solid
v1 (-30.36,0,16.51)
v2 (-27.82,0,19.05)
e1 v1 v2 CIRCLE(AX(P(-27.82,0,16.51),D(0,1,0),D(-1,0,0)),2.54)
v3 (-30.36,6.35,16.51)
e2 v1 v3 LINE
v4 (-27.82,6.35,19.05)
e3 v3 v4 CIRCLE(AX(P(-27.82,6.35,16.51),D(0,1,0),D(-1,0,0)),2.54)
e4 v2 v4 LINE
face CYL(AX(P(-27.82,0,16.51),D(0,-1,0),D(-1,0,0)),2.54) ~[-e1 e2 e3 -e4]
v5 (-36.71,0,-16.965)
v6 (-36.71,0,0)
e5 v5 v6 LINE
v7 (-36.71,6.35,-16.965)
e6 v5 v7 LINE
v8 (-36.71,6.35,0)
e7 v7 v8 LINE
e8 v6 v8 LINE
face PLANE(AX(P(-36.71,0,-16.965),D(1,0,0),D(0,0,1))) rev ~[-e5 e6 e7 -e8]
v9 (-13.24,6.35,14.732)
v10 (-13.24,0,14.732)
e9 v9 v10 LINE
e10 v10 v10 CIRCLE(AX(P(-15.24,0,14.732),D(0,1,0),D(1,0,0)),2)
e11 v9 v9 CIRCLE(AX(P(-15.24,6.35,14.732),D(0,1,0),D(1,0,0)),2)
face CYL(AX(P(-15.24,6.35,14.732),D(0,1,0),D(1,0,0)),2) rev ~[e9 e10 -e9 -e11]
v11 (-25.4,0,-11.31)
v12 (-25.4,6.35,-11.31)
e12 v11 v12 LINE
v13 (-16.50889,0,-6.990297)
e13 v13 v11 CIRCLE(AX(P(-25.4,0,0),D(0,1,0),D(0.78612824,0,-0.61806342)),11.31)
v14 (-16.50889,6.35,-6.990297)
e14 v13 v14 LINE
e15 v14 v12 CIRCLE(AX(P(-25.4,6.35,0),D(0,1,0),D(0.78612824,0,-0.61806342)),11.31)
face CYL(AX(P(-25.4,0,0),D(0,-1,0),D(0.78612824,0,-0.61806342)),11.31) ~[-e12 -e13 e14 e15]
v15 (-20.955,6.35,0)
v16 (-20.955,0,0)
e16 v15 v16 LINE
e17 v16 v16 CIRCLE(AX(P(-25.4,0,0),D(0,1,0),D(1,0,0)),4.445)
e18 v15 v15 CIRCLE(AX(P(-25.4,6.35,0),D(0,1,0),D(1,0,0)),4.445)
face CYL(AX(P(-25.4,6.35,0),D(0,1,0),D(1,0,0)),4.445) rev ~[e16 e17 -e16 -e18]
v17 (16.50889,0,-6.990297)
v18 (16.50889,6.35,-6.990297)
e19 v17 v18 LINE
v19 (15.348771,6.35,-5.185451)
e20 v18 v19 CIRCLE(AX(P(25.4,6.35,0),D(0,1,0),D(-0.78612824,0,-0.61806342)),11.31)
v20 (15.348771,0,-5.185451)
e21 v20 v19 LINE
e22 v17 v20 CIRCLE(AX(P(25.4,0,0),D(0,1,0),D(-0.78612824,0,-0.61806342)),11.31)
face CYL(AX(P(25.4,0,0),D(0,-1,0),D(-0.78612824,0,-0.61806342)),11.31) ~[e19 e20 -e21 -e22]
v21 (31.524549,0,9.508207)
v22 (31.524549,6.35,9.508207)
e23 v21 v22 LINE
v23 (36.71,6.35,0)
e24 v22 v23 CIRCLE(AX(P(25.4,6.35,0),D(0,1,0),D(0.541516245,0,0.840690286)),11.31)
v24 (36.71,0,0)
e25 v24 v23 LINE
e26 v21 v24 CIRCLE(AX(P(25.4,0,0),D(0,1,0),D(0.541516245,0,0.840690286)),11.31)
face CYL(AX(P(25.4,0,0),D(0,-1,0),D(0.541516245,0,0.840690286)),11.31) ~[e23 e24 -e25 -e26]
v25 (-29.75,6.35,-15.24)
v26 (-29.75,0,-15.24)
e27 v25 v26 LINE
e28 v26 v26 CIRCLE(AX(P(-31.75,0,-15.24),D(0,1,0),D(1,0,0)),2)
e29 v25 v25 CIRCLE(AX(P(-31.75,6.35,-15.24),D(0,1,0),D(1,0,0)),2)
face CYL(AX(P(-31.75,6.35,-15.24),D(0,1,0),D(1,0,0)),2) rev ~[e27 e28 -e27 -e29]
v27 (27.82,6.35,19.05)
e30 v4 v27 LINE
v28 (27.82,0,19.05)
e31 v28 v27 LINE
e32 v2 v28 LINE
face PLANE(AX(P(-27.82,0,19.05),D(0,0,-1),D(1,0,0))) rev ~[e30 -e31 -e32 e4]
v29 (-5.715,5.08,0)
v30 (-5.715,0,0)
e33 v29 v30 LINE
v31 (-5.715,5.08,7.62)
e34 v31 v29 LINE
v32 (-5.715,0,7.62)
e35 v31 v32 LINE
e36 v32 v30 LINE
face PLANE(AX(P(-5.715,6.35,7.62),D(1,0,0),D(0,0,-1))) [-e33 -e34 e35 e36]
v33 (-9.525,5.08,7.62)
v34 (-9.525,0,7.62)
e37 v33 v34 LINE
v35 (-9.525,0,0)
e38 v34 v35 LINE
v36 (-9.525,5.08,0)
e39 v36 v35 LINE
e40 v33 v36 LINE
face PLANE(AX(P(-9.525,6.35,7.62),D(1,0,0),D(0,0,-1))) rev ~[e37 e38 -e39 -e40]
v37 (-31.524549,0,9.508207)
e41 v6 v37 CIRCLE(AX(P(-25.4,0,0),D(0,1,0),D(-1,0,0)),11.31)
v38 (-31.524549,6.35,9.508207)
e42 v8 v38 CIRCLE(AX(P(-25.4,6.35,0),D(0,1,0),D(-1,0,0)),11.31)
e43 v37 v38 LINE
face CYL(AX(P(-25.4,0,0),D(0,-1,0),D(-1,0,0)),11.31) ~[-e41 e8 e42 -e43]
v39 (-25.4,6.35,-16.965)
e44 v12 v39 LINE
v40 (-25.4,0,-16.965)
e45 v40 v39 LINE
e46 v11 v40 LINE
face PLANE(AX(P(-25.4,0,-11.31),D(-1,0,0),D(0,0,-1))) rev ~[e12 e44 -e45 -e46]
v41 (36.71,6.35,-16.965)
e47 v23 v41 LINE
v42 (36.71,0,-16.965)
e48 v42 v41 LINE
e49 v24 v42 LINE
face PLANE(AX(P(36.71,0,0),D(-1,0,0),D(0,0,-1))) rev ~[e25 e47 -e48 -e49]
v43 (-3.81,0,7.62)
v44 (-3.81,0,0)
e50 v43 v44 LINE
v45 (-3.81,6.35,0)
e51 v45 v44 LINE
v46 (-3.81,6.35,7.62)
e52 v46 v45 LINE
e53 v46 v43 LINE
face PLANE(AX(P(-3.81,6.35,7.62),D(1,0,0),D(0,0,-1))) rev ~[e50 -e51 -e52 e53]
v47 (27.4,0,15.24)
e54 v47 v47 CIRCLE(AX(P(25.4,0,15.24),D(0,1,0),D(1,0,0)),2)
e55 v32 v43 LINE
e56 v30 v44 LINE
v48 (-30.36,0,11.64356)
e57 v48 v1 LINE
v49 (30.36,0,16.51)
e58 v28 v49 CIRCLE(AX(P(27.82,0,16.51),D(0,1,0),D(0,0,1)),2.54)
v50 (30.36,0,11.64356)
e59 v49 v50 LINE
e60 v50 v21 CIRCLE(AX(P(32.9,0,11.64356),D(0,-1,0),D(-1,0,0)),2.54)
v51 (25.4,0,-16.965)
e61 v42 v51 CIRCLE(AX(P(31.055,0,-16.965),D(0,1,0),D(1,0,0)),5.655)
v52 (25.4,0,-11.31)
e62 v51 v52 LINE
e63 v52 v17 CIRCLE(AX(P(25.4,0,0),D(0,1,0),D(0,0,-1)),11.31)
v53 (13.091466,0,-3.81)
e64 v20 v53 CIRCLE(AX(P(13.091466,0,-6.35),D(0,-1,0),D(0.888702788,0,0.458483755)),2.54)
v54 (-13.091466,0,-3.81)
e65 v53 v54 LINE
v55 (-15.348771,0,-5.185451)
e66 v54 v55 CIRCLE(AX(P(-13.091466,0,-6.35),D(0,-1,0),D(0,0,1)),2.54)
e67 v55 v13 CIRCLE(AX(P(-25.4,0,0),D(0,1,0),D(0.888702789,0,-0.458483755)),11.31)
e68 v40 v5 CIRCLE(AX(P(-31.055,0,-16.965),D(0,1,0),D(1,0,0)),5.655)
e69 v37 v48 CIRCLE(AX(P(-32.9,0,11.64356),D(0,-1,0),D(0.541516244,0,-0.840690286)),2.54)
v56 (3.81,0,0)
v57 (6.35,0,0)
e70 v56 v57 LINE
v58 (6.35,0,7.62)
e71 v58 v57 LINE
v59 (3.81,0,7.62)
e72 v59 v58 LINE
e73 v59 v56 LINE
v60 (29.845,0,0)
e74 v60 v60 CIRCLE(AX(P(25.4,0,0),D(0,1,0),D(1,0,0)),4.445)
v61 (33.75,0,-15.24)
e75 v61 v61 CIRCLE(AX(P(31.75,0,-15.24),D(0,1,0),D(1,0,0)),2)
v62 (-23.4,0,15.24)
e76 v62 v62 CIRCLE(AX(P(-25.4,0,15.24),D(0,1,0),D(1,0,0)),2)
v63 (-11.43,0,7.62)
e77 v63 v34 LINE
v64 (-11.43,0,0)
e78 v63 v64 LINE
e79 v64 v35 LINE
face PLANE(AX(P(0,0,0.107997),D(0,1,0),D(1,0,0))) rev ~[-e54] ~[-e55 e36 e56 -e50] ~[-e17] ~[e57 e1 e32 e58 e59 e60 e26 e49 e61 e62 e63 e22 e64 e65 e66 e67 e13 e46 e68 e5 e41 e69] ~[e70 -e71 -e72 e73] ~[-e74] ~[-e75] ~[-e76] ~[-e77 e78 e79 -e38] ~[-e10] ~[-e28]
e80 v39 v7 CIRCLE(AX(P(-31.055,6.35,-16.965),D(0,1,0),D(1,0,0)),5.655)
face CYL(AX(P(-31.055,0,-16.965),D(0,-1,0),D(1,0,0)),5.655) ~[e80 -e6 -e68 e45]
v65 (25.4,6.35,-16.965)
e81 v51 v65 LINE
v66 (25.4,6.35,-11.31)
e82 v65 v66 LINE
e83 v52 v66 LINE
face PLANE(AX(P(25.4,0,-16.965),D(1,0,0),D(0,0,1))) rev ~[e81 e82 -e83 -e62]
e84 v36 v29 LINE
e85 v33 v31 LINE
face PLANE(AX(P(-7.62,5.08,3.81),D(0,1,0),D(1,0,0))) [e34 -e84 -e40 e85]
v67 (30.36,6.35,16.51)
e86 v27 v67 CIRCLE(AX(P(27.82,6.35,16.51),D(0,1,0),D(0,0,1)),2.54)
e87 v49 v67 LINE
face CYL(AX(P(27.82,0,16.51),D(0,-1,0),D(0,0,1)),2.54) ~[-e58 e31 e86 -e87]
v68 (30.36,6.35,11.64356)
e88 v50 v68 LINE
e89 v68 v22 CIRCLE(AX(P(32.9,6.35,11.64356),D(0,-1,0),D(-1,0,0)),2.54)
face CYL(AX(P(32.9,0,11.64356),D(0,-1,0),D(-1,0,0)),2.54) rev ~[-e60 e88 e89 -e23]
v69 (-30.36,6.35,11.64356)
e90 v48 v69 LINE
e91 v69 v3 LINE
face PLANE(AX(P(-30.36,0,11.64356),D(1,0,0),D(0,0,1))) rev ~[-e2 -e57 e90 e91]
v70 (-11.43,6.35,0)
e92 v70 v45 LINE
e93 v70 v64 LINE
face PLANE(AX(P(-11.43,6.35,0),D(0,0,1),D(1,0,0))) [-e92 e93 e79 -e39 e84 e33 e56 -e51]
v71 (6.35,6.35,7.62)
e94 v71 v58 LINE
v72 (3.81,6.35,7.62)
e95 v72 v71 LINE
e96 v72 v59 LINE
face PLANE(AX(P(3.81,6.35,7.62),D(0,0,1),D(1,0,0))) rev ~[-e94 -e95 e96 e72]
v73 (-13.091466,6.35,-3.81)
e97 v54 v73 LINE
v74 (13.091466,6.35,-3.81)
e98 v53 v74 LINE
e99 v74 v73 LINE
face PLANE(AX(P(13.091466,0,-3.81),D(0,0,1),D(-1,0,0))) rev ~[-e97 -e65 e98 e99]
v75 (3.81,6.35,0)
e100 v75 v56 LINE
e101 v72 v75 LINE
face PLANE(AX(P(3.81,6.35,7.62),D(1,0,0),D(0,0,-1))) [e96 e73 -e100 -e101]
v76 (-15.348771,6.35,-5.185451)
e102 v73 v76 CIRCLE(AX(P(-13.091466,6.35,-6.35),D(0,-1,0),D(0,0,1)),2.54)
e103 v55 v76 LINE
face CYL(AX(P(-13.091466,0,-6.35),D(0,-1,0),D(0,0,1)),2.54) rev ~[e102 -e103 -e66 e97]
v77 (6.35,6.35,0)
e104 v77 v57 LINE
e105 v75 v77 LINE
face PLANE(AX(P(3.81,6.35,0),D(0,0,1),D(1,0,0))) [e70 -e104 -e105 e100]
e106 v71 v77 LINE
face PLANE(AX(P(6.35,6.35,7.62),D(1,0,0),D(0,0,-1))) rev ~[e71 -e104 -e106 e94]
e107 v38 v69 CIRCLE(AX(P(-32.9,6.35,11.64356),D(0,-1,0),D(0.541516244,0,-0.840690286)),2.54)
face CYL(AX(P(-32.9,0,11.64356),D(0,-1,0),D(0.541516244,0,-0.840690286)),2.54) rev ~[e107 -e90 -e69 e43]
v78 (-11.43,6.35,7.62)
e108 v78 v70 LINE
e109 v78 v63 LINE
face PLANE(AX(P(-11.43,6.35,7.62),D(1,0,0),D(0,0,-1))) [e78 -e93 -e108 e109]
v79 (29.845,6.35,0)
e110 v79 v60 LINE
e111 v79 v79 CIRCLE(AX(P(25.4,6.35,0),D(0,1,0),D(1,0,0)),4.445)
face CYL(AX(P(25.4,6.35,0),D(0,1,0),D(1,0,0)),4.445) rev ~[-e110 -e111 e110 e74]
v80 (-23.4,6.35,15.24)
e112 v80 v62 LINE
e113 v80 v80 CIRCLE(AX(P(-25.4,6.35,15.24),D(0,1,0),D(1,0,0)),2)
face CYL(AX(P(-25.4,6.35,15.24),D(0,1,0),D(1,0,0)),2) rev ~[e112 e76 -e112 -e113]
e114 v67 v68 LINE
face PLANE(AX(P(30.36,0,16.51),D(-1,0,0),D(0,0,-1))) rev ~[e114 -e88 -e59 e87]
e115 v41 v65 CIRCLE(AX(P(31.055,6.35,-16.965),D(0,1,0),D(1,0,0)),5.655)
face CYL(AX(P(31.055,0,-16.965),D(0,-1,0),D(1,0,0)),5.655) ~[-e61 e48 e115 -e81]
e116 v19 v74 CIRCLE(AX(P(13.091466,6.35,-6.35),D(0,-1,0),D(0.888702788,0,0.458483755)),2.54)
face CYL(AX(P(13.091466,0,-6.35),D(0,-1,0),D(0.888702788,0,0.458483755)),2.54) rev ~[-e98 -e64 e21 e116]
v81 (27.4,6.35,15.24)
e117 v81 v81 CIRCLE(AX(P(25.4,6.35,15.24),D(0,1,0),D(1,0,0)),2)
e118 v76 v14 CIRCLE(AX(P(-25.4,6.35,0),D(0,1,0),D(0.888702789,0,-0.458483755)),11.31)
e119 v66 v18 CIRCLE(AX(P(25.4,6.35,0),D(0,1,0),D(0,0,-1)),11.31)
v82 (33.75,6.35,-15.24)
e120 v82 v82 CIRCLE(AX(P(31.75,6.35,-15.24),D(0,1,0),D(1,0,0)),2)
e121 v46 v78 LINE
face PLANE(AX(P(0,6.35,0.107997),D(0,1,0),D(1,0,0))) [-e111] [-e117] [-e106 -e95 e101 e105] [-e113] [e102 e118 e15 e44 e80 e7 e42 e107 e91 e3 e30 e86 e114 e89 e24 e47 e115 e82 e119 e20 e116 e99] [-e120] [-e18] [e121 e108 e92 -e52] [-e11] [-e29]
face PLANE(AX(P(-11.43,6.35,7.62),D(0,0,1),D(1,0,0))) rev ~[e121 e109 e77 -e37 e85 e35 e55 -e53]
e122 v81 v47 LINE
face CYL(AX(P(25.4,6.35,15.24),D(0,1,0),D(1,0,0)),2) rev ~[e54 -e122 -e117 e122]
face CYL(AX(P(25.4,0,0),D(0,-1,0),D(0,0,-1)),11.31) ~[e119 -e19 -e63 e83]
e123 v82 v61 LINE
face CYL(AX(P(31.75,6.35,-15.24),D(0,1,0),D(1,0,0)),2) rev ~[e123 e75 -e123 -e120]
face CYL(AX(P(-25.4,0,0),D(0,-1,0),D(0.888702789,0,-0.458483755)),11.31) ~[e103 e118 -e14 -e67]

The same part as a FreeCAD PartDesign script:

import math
import FreeCAD as App
import Part
import Sketcher
from FreeCAD import Vector
Q = App.Units.Quantity


def add_polygon(sketch, points):
    """Adds a closed chain of lines whose ends are joined by coincident constraints."""
    first, n = sketch.GeometryCount, len(points)
    for a, b in zip(points, points[1:] + points[:1]):
        sketch.addGeometry(Part.LineSegment(App.Vector(*a, 0), App.Vector(*b, 0)), False)
    for i in range(n):
        sketch.addConstraint(Sketcher.Constraint("Coincident", first + i, 2, first + (i + 1) % n, 1))

doc = App.newDocument("Part")
body = doc.addObject("PartDesign::Body", "Body")

# Sketch on XZ plane
sketch1 = body.newObject("Sketcher::SketchObject", "Sketch")
sketch1.AttachmentSupport = (doc.getObject("XZ_Plane"), [""])
sketch1.MapMode = "FlatFace"
sketch1.addGeometry([
    Part.LineSegment(Vector(-25.4, -11.3, 0), Vector(-25.4, -17, 0)),  # 0
    Part.ArcOfCircle(Part.Circle(Vector(-31.1, -17, 0), Vector(0, 0, 1), 5.7), math.radians(180), math.radians(360)),  # 1
    Part.LineSegment(Vector(-36.7, -17, 0), Vector(-36.7, 0, 0)),  # 2
    Part.ArcOfCircle(Part.Circle(Vector(-25.4, 0, 0), Vector(0, 0, 1), 11.3), math.radians(123), math.radians(180)),  # 3
    Part.ArcOfCircle(Part.Circle(Vector(-32.9, 11.6, 0), Vector(0, 0, 1), 2.5), math.radians(-57), math.radians(0)),  # 4
    Part.LineSegment(Vector(-30.4, 11.6, 0), Vector(-30.4, 16.5, 0)),  # 5
    Part.ArcOfCircle(Part.Circle(Vector(-27.8, 16.5, 0), Vector(0, 0, 1), 2.5), math.radians(90), math.radians(180)),  # 6
    Part.LineSegment(Vector(-27.8, 19.1, 0), Vector(27.8, 19.1, 0)),  # 7
    Part.ArcOfCircle(Part.Circle(Vector(27.8, 16.5, 0), Vector(0, 0, 1), 2.5), math.radians(0), math.radians(90)),  # 8
    Part.LineSegment(Vector(30.4, 16.5, 0), Vector(30.4, 11.6, 0)),  # 9
    Part.ArcOfCircle(Part.Circle(Vector(32.9, 11.6, 0), Vector(0, 0, 1), 2.5), math.radians(180), math.radians(237)),  # 10
    Part.ArcOfCircle(Part.Circle(Vector(25.4, 0, 0), Vector(0, 0, 1), 11.3), math.radians(0), math.radians(57)),  # 11
    Part.LineSegment(Vector(36.7, 0, 0), Vector(36.7, -17, 0)),  # 12
    Part.ArcOfCircle(Part.Circle(Vector(31.1, -17, 0), Vector(0, 0, 1), 5.7), math.radians(180), math.radians(360)),  # 13
    Part.LineSegment(Vector(25.4, -17, 0), Vector(25.4, -11.3, 0)),  # 14
    Part.ArcOfCircle(Part.Circle(Vector(25.4, 0, 0), Vector(0, 0, 1), 11.3), math.radians(-142), math.radians(-90)),  # 15
    Part.ArcOfCircle(Part.Circle(Vector(25.4, 0, 0), Vector(0, 0, 1), 11.3), math.radians(-152.71), math.radians(-141.83)),  # 16
    Part.ArcOfCircle(Part.Circle(Vector(13.1, -6.4, 0), Vector(0, 0, 1), 2.5), math.radians(27), math.radians(90)),  # 17
    Part.LineSegment(Vector(13.1, -3.8, 0), Vector(-13.1, -3.8, 0)),  # 18
    Part.ArcOfCircle(Part.Circle(Vector(-13.1, -6.4, 0), Vector(0, 0, 1), 2.5), math.radians(90), math.radians(153)),  # 19
    Part.ArcOfCircle(Part.Circle(Vector(-25.4, 0, 0), Vector(0, 0, 1), 11.3), math.radians(-38.17), math.radians(-27.29)),  # 20
    Part.ArcOfCircle(Part.Circle(Vector(-25.4, 0, 0), Vector(0, 0, 1), 11.3), math.radians(-90), math.radians(-38)),  # 21
], False)
sketch1.addConstraint([
    Sketcher.Constraint("Tangent", 0, 2, 1, 2),
    Sketcher.Constraint("Tangent", 1, 1, 2, 1),
    Sketcher.Constraint("Tangent", 2, 2, 3, 2),
    Sketcher.Constraint("Tangent", 3, 1, 4, 1),
    Sketcher.Constraint("Tangent", 4, 2, 5, 1),
    Sketcher.Constraint("Tangent", 5, 2, 6, 2),
    Sketcher.Constraint("Tangent", 6, 1, 7, 1),
    Sketcher.Constraint("Tangent", 7, 2, 8, 2),
    Sketcher.Constraint("Tangent", 8, 1, 9, 1),
    Sketcher.Constraint("Tangent", 9, 2, 10, 1),
    Sketcher.Constraint("Tangent", 10, 2, 11, 2),
    Sketcher.Constraint("Tangent", 11, 1, 12, 1),
    Sketcher.Constraint("Tangent", 12, 2, 13, 2),
    Sketcher.Constraint("Tangent", 13, 1, 14, 1),
    Sketcher.Constraint("Coincident", 14, 2, 15, 2),
    Sketcher.Constraint("Tangent", 15, 1, 16, 2),
    Sketcher.Constraint("Tangent", 16, 1, 17, 1),
    Sketcher.Constraint("Tangent", 17, 2, 18, 1),
    Sketcher.Constraint("Tangent", 18, 2, 19, 1),
    Sketcher.Constraint("Tangent", 19, 2, 20, 2),
    Sketcher.Constraint("Tangent", 20, 1, 21, 2),
    Sketcher.Constraint("Coincident", 21, 1, 0, 1),
    Sketcher.Constraint("Vertical", 0),
    Sketcher.Constraint("Vertical", 2),
    Sketcher.Constraint("Vertical", 5),
    Sketcher.Constraint("Horizontal", 7),
    Sketcher.Constraint("Vertical", 9),
    Sketcher.Constraint("Vertical", 12),
    Sketcher.Constraint("Vertical", 14),
    Sketcher.Constraint("Horizontal", 18),
    Sketcher.Constraint("Coincident", 15, 3, 11, 3),
    Sketcher.Constraint("Coincident", 20, 3, 3, 3),
    Sketcher.Constraint("Equal", 4, 6),
    Sketcher.Constraint("Equal", 6, 8),
    Sketcher.Constraint("Equal", 8, 10),
    Sketcher.Constraint("Equal", 3, 11),
    Sketcher.Constraint("Equal", 1, 13),
    Sketcher.Constraint("Equal", 11, 15),
    Sketcher.Constraint("Equal", 15, 16),
    Sketcher.Constraint("Equal", 10, 17),
    Sketcher.Constraint("Equal", 17, 19),
    Sketcher.Constraint("Equal", 16, 20),
    Sketcher.Constraint("Equal", 20, 21),
    Sketcher.Constraint("Symmetric", 3, 3, 11, 3, -1, 1),
    Sketcher.Constraint("Symmetric", 4, 3, 10, 3, -2),
    Sketcher.Constraint("Horizontal", 1, 3, 13, 3),
    Sketcher.Constraint("Horizontal", 15, 1, 20, 1),
    Sketcher.Constraint("Vertical", 21, 3, 0, 2),
    Sketcher.Constraint("Radius", 4, Q("0.1 in")),
    Sketcher.Constraint("DistanceX", 3, 3, -1, 1, Q("1 in")),
    Sketcher.Constraint("DistanceY", 19, 3, 6, 3, Q("0.9 in")),
    Sketcher.Constraint("DistanceY", -1, 1, 6, 3, Q("0.65 in")),
    Sketcher.Constraint("Radius", 1, Q("5.655 mm")),
    Sketcher.Constraint("DistanceX", 2, 2, 4, 3, Q("0.15 in")),
    Sketcher.Constraint("DistanceY", 0, 2, 0, 1, Q("5.655 mm")),
    Sketcher.Constraint("DistanceX", -1, 1, 15, 1, Q("16.50889 mm")),
])
pad1 = body.newObject("PartDesign::Pad", "Pad")
pad1.Profile = sketch1
pad1.Length = Q("0.25 in")
pad1.Reversed = True

# Sketch on XZ plane
sketch2 = body.newObject("Sketcher::SketchObject", "Sketch001")
sketch2.AttachmentSupport = (doc.getObject("XZ_Plane"), [""])
sketch2.MapMode = "FlatFace"
sketch2.AttachmentOffset = App.Placement(Vector(0, 0, -0.25 * 25.4), App.Rotation())
sketch2.addGeometry([
    Part.Circle(Vector(-25.4, 0, 0), Vector(0, 0, 1), 4.4),
    Part.Circle(Vector(25.4, 0, 0), Vector(0, 0, 1), 4.4),
], False)
sketch2.addConstraint([
    Sketcher.Constraint("Equal", 0, 1),
    Sketcher.Constraint("Symmetric", 0, 3, 1, 3, -1, 1),
    Sketcher.Constraint("PointOnObject", 0, 3, -1),
    Sketcher.Constraint("Diameter", 0, Q("0.35 in")),
    Sketcher.Constraint("DistanceX", 0, 3, -1, 1, Q("1 in")),
])
pocket1 = body.newObject("PartDesign::Pocket", "Pocket")
pocket1.Profile = sketch2
pocket1.Length = Q("0.25 in")
pocket1.Reversed = True

# Sketch on XZ plane
sketch3 = body.newObject("Sketcher::SketchObject", "Sketch002")
sketch3.AttachmentSupport = (doc.getObject("XZ_Plane"), [""])
sketch3.MapMode = "FlatFace"
sketch3.AttachmentOffset = App.Placement(Vector(0, 0, -0.25 * 25.4), App.Rotation())
add_polygon(sketch3, [(3.8, 0), (3.8, 7.6), (6.3, 7.6), (6.3, 0)])  # lines 0-3
add_polygon(sketch3, [(-5.7, 0), (-5.7, 7.6), (-3.8, 7.6), (-3.8, 0)])  # lines 4-7
add_polygon(sketch3, [(-11.4, 0), (-11.4, 7.6), (-9.5, 7.6), (-9.5, 0)])  # lines 8-11
sketch3.addConstraint([
    Sketcher.Constraint("Vertical", 0),
    Sketcher.Constraint("Horizontal", 1),
    Sketcher.Constraint("Vertical", 2),
    Sketcher.Constraint("Horizontal", 3),
    Sketcher.Constraint("Vertical", 4),
    Sketcher.Constraint("Horizontal", 5),
    Sketcher.Constraint("Vertical", 6),
    Sketcher.Constraint("Horizontal", 7),
    Sketcher.Constraint("Vertical", 8),
    Sketcher.Constraint("Horizontal", 9),
    Sketcher.Constraint("Vertical", 10),
    Sketcher.Constraint("Horizontal", 11),
    Sketcher.Constraint("Symmetric", 3, 2, 6, 2, -1, 1),
    Sketcher.Constraint("PointOnObject", 2, 2, -1),
    Sketcher.Constraint("PointOnObject", 10, 2, -1),
    Sketcher.Constraint("Horizontal", 1, 2, 4, 2),
    Sketcher.Constraint("Horizontal", 5, 2, 8, 2),
    Sketcher.Constraint("Equal", 7, 9),
    Sketcher.Constraint("DistanceX", 1, 1, 1, 2, Q("0.1 in")),
    Sketcher.Constraint("DistanceY", 0, 1, 0, 2, Q("0.3 in")),
    Sketcher.Constraint("DistanceX", 5, 2, 0, 2, Q("0.3 in")),
    Sketcher.Constraint("DistanceX", 8, 2, 5, 2, Q("0.3 in")),
    Sketcher.Constraint("DistanceX", 5, 1, 5, 2, Q("0.075 in")),
])
pocket2 = body.newObject("PartDesign::Pocket", "Pocket001")
pocket2.Profile = sketch3
pocket2.Length = Q("0.25 in")
pocket2.Reversed = True

# Sketch on XZ plane
sketch4 = body.newObject("Sketcher::SketchObject", "Sketch003")
sketch4.AttachmentSupport = (doc.getObject("XZ_Plane"), [""])
sketch4.MapMode = "FlatFace"
sketch4.AttachmentOffset = App.Placement(Vector(0, 0, -0.25 * 25.4), App.Rotation())
add_polygon(sketch4, [(-9.5, 0), (-9.5, 7.6), (-5.7, 7.6), (-5.7, 0)])  # lines 0-3
sketch4.addConstraint([
    Sketcher.Constraint("Vertical", 0),
    Sketcher.Constraint("Horizontal", 1),
    Sketcher.Constraint("Vertical", 2),
    Sketcher.Constraint("Horizontal", 3),
    Sketcher.Constraint("PointOnObject", 2, 2, -1),
    Sketcher.Constraint("DistanceY", 0, 1, 0, 2, Q("0.3 in")),
    Sketcher.Constraint("DistanceX", 1, 1, 1, 2, Q("0.15 in")),
    Sketcher.Constraint("DistanceX", 0, 2, -1, 1, Q("0.375 in")),
])
pocket3 = body.newObject("PartDesign::Pocket", "Pocket002")
pocket3.Profile = sketch4
pocket3.Length = Q("0.05 in")
pocket3.Reversed = True

# Sketch on XZ plane
sketch5 = body.newObject("Sketcher::SketchObject", "Sketch004")
sketch5.AttachmentSupport = (doc.getObject("XZ_Plane"), [""])
sketch5.MapMode = "FlatFace"
sketch5.AttachmentOffset = App.Placement(Vector(0, 0, -0.25 * 25.4), App.Rotation())
sketch5.addGeometry([
    Part.Circle(Vector(-31.8, -15.2, 0), Vector(0, 0, 1), 2),
    Part.Circle(Vector(25.4, 15.2, 0), Vector(0, 0, 1), 2),
    Part.Circle(Vector(-25.4, 15.2, 0), Vector(0, 0, 1), 2),
    Part.Circle(Vector(31.8, -15.2, 0), Vector(0, 0, 1), 2),
], False)
sketch5.addConstraint([
    Sketcher.Constraint("Equal", 0, 1),
    Sketcher.Constraint("Equal", 1, 2),
    Sketcher.Constraint("Equal", 2, 3),
    Sketcher.Constraint("Symmetric", 1, 3, 2, 3, -2),
    Sketcher.Constraint("Symmetric", 0, 3, 3, 3, -2),
    Sketcher.Constraint("DistanceX", -1, 1, 1, 3, Q("1 in")),
    Sketcher.Constraint("DistanceY", 0, 3, -1, 1, Q("0.6 in")),
    Sketcher.Constraint("DistanceY", -1, 1, 1, 3, Q("0.6 in")),
    Sketcher.Constraint("DistanceX", 0, 3, 3, 3, Q("2.5 in")),
    Sketcher.Constraint("Diameter", 0, Q("4 mm")),
])
pocket4 = body.newObject("PartDesign::Pocket", "Pocket003")
pocket4.Profile = sketch5
pocket4.Length = Q("0.25 in")
pocket4.Reversed = True

# Sketch on XZ plane
sketch6 = body.newObject("Sketcher::SketchObject", "Sketch005")
sketch6.AttachmentSupport = (doc.getObject("XZ_Plane"), [""])
sketch6.MapMode = "FlatFace"
sketch6.AttachmentOffset = App.Placement(Vector(0, 0, -0.25 * 25.4), App.Rotation())
sketch6.addGeometry(Part.Circle(Vector(-15.2, 14.7, 0), Vector(0, 0, 1), 2), False)
sketch6.addConstraint([
    Sketcher.Constraint("DistanceX", 0, 3, -1, 1, Q("0.6 in")),
    Sketcher.Constraint("Diameter", 0, Q("4 mm")),
    Sketcher.Constraint("DistanceY", -1, 1, 0, 3, Q("0.58 in")),
])
pocket5 = body.newObject("PartDesign::Pocket", "Pocket004")
pocket5.Profile = sketch6
pocket5.Length = Q("0.25 in")
pocket5.Reversed = True

doc.recompute()
